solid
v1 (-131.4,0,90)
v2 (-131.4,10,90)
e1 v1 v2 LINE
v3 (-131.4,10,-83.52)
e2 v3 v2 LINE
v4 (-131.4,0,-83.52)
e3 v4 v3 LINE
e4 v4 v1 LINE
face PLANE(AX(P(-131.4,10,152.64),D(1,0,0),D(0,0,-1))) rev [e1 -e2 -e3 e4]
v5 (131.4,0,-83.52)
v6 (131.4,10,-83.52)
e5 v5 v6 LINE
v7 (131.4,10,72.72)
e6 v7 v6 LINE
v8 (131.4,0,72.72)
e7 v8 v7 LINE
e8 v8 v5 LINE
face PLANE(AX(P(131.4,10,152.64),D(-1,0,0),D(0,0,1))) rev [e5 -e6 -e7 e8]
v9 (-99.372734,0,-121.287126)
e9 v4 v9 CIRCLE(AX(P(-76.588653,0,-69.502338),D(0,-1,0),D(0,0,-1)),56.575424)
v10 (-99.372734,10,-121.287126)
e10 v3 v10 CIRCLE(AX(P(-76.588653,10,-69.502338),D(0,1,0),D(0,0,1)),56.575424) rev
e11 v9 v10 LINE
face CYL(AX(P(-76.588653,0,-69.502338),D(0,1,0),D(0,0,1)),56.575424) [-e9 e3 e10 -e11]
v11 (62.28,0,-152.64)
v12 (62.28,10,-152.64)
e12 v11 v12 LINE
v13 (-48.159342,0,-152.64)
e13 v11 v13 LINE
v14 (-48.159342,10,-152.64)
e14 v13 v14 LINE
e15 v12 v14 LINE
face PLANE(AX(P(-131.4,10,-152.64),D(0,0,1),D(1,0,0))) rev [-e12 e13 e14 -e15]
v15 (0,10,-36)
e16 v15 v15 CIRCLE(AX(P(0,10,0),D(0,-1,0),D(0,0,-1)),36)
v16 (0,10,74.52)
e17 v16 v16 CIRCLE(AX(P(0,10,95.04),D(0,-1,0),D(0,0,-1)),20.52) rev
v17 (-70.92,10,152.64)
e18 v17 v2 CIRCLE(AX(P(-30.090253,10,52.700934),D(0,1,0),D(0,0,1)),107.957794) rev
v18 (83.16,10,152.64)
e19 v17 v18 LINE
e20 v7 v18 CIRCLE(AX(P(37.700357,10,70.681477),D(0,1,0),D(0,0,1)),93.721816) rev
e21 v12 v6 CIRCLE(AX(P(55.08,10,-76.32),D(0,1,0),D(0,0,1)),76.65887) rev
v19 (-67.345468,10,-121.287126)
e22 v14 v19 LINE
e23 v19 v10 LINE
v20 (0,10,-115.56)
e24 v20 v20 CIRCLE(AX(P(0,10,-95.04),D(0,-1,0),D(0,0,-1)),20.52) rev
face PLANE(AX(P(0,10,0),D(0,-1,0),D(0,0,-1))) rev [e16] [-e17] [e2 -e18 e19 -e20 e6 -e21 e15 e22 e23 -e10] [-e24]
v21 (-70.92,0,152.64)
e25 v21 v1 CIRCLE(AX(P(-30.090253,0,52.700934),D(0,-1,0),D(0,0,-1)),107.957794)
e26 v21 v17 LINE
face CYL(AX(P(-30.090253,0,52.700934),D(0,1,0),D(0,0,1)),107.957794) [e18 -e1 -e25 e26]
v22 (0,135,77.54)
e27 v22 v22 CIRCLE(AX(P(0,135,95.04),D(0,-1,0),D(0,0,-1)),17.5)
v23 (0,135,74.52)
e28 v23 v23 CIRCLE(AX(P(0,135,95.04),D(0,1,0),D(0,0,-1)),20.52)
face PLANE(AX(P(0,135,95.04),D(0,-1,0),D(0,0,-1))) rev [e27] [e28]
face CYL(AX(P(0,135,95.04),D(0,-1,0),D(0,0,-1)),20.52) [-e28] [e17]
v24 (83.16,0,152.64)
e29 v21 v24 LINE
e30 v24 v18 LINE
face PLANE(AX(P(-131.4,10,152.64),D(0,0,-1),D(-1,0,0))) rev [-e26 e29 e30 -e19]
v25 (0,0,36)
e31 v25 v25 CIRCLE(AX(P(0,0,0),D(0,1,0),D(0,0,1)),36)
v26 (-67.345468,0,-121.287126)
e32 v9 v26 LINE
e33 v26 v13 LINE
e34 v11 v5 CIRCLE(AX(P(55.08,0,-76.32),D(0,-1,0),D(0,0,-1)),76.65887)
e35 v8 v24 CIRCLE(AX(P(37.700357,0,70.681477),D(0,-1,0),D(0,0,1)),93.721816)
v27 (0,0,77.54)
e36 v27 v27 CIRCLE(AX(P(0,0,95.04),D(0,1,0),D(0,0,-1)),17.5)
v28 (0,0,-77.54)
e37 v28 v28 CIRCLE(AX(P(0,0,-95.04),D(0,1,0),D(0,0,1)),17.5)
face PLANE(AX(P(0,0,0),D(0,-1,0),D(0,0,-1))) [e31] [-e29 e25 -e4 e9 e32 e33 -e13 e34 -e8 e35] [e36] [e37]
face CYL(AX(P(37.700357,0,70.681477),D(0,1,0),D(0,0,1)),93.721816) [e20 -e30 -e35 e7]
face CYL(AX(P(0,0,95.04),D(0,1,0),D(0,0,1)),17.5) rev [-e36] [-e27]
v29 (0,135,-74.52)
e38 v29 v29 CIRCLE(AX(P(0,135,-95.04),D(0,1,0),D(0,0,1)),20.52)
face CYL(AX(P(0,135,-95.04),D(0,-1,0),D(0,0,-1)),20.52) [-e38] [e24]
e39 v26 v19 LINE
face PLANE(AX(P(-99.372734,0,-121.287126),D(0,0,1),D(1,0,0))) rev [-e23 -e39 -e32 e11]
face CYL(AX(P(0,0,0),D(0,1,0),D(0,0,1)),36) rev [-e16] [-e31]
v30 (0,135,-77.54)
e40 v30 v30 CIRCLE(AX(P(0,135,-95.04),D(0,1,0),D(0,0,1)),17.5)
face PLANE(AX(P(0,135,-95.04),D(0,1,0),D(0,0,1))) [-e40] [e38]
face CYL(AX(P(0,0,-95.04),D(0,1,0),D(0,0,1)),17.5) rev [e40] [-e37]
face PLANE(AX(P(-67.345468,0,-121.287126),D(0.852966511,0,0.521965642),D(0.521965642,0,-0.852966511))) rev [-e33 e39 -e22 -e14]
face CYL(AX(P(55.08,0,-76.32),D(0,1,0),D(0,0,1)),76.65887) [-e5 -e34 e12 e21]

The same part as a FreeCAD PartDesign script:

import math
import FreeCAD as App
import Part
import Sketcher
Q = App.Units.Quantity


def add_polygon(sketch, points):
    """Adds a closed chain of lines whose ends are joined by coincident constraints."""
    first, n = sketch.GeometryCount, len(points)
    for a, b in zip(points, points[1:] + points[:1]):
        sketch.addGeometry(Part.LineSegment(App.Vector(*a, 0), App.Vector(*b, 0)), False)
    for i in range(n):
        sketch.addConstraint(Sketcher.Constraint("Coincident", first + i, 2, first + (i + 1) % n, 1))

doc = App.newDocument("Part")
params = doc.addObject("Spreadsheet::Sheet", "Params")
for row, (alias, value) in enumerate([
    ("sketch1_width", "262.8 mm"),
    ("sketch1_height", "305.28 mm"),
    ("pad1_length", "10 mm"),
    ("sketch2_width", "60.48 mm"),
    ("sketch2_width2", "48.24 mm"),
    ("sketch2_width3", "69.12 mm"),
    ("sketch2_height", "62.64 mm"),
    ("sketch2_height2", "79.92 mm"),
    ("sketch3_diameter", "72 mm"),
    ("sketch4_diameter", "41.04 mm"),
    ("pad2_length", "125 mm"),
    ("sketch5_diameter", "35 mm"),
], start=1):
    params.set(f"A{row}", alias)
    params.set(f"B{row}", "=" + value)
    params.setAlias(f"B{row}", alias)

body = doc.addObject("PartDesign::Body", "Body")

# Sketch on XZ plane
sketch1 = doc.addObject("Sketcher::SketchObject", "Sketch")
body.addObject(sketch1)
sketch1.AttachmentSupport = (doc.XZ_Plane, [""])
sketch1.MapMode = "FlatFace"
add_polygon(sketch1, [(-131.4, -152.64), (-131.4, 152.64), (131.4, 152.64), (131.4, -152.64)])  # lines 0-3
sketch1.addConstraint(Sketcher.Constraint("Vertical", 0))
sketch1.addConstraint(Sketcher.Constraint("Horizontal", 1))
sketch1.addConstraint(Sketcher.Constraint("Vertical", 2))
sketch1.addConstraint(Sketcher.Constraint("Horizontal", 3))
sketch1.addConstraint(Sketcher.Constraint("Symmetric", 0, 2, 2, 2, -1, 1))
sketch1.addConstraint(Sketcher.Constraint("DistanceX", 1, 1, 1, 2, Q("262.8 mm")))
sketch1.addConstraint(Sketcher.Constraint("DistanceY", 0, 1, 0, 2, Q("305.28 mm")))
sketch1.setExpression("Constraints[9]", "Params.sketch1_width")
sketch1.setExpression("Constraints[10]", "Params.sketch1_height")
pad1 = doc.addObject("PartDesign::Pad", "Pad")
body.addObject(pad1)
pad1.Profile = sketch1
pad1.setExpression("Length", "Params.pad1_length")
pad1.Reversed = True

# Sketch on XZ plane
sketch2 = doc.addObject("Sketcher::SketchObject", "Sketch001")
body.addObject(sketch2)
sketch2.AttachmentSupport = (doc.XZ_Plane, [""])
sketch2.MapMode = "FlatFace"
sketch2.AttachmentOffset = App.Placement(App.Vector(0, 0, -10), App.Rotation())
sketch2.addGeometry(Part.LineSegment(App.Vector(-131.4, 90, 0), App.Vector(-131.4, 152.64, 0)), False)
sketch2.addGeometry(Part.LineSegment(App.Vector(-131.4, 152.64, 0), App.Vector(-70.92, 152.64, 0)), False)
sketch2.addGeometry(Part.ArcOfCircle(Part.Circle(App.Vector(-30.090253, 52.700934, 0), App.Vector(0, 0, 1), 107.957794), math.radians(112.222294), math.radians(159.787878)), False)
sketch2.addGeometry(Part.LineSegment(App.Vector(83.16, 152.64, 0), App.Vector(131.4, 152.64, 0)), False)
sketch2.addGeometry(Part.LineSegment(App.Vector(131.4, 152.64, 0), App.Vector(131.4, 72.72, 0)), False)
sketch2.addGeometry(Part.ArcOfCircle(Part.Circle(App.Vector(37.700357, 70.681477, 0), App.Vector(0, 0, 1), 93.721816), math.radians(1.246327), math.radians(60.984338)), False)
sketch2.addGeometry(Part.LineSegment(App.Vector(-99.372734, -121.287126, 0), App.Vector(-67.345468, -121.287126, 0)), False)
sketch2.addGeometry(Part.LineSegment(App.Vector(-67.345468, -121.287126, 0), App.Vector(-48.159342, -152.64, 0)), False)
sketch2.addGeometry(Part.LineSegment(App.Vector(-48.159342, -152.64, 0), App.Vector(-131.4, -152.64, 0)), False)
sketch2.addGeometry(Part.LineSegment(App.Vector(-131.4, -152.64, 0), App.Vector(-131.4, -83.52, 0)), False)
sketch2.addGeometry(Part.ArcOfCircle(Part.Circle(App.Vector(-76.588653, -69.502338, 0), App.Vector(0, 0, 1), 56.575424), math.radians(-165.654441), math.radians(-113.748358)), False)
sketch2.addGeometry(Part.LineSegment(App.Vector(131.4, -83.52, 0), App.Vector(131.4, -152.64, 0)), False)
sketch2.addGeometry(Part.LineSegment(App.Vector(131.4, -152.64, 0), App.Vector(62.28, -152.64, 0)), False)
sketch2.addGeometry(Part.ArcOfCircle(Part.Circle(App.Vector(55.08, -76.32, 0), App.Vector(0, 0, 1), 76.65887), math.radians(-84.610688), math.radians(-5.389312)), False)
sketch2.addConstraint(Sketcher.Constraint("Coincident", 0, 2, 1, 1))
sketch2.addConstraint(Sketcher.Constraint("Coincident", 1, 2, 2, 1))
sketch2.addConstraint(Sketcher.Constraint("Coincident", 2, 2, 0, 1))
sketch2.addConstraint(Sketcher.Constraint("Coincident", 3, 2, 4, 1))
sketch2.addConstraint(Sketcher.Constraint("Coincident", 4, 2, 5, 1))
sketch2.addConstraint(Sketcher.Constraint("Coincident", 5, 2, 3, 1))
sketch2.addConstraint(Sketcher.Constraint("Coincident", 6, 2, 7, 1))
sketch2.addConstraint(Sketcher.Constraint("Coincident", 7, 2, 8, 1))
sketch2.addConstraint(Sketcher.Constraint("Coincident", 8, 2, 9, 1))
sketch2.addConstraint(Sketcher.Constraint("Coincident", 9, 2, 10, 1))
sketch2.addConstraint(Sketcher.Constraint("Coincident", 10, 2, 6, 1))
sketch2.addConstraint(Sketcher.Constraint("Coincident", 11, 2, 12, 1))
sketch2.addConstraint(Sketcher.Constraint("Coincident", 12, 2, 13, 1))
sketch2.addConstraint(Sketcher.Constraint("Coincident", 13, 2, 11, 1))
sketch2.addConstraint(Sketcher.Constraint("Vertical", 0))
sketch2.addConstraint(Sketcher.Constraint("Horizontal", 1))
sketch2.addConstraint(Sketcher.Constraint("Horizontal", 3))
sketch2.addConstraint(Sketcher.Constraint("Vertical", 4))
sketch2.addConstraint(Sketcher.Constraint("Horizontal", 6))
sketch2.addConstraint(Sketcher.Constraint("Horizontal", 8))
sketch2.addConstraint(Sketcher.Constraint("Vertical", 9))
sketch2.addConstraint(Sketcher.Constraint("Vertical", 11))
sketch2.addConstraint(Sketcher.Constraint("Horizontal", 12))
sketch2.addConstraint(Sketcher.Constraint("Symmetric", 3, 2, 8, 2, -1, 1))
sketch2.addConstraint(Sketcher.Constraint("Symmetric", 0, 2, 11, 2, -1, 1))
sketch2.addConstraint(Sketcher.Constraint("Symmetric", 0, 2, 3, 2, -2))
sketch2.addConstraint(Sketcher.Constraint("Horizontal", 9, 2, 13, 2))
sketch2.addConstraint(Sketcher.Constraint("Equal", 12, 9))
sketch2.addConstraint(Sketcher.Constraint("DistanceY", -1, 1, 2, 2, Q("90 mm")))
sketch2.addConstraint(Sketcher.Constraint("DistanceX", 1, 2, 13, 3, Q("126 mm")))
sketch2.addConstraint(Sketcher.Constraint("DistanceX", 1, 1, 1, 2, Q("60.48 mm")))
sketch2.addConstraint(Sketcher.Constraint("DistanceX", 3, 1, 3, 2, Q("48.24 mm")))
sketch2.addConstraint(Sketcher.Constraint("DistanceX", 12, 2, 12, 1, Q("69.12 mm")))
sketch2.addConstraint(Sketcher.Constraint("DistanceY", 0, 1, 0, 2, Q("62.64 mm")))
sketch2.addConstraint(Sketcher.Constraint("DistanceY", 4, 2, 4, 1, Q("79.92 mm")))
sketch2.addConstraint(Sketcher.Constraint("DistanceX", 0, 2, -1, 1, Q("131.4 mm")))
sketch2.addConstraint(Sketcher.Constraint("Radius", 2, Q("107.957794 mm")))
sketch2.addConstraint(Sketcher.Constraint("Radius", 5, Q("93.721816 mm")))
sketch2.addConstraint(Sketcher.Constraint("Radius", 10, Q("56.575424 mm")))
sketch2.addConstraint(Sketcher.Constraint("DistanceX", 10, 3, 2, 3, Q("46.498401 mm")))
sketch2.addConstraint(Sketcher.Constraint("DistanceX", 7, 2, 5, 3, Q("85.859699 mm")))
sketch2.addConstraint(Sketcher.Constraint("Distance", 7, Q("36.75745 mm")))
sketch2.addConstraint(Sketcher.Constraint("DistanceX", 6, 1, 6, 2, Q("32.027266 mm")))
sketch2.setExpression("Constraints[30]", "Params.sketch2_width")
sketch2.setExpression("Constraints[31]", "Params.sketch2_width2")
sketch2.setExpression("Constraints[32]", "Params.sketch2_width3")
sketch2.setExpression("Constraints[33]", "Params.sketch2_height")
sketch2.setExpression("Constraints[34]", "Params.sketch2_height2")
pocket1 = doc.addObject("PartDesign::Pocket", "Pocket")
body.addObject(pocket1)
pocket1.Profile = sketch2
pocket1.Type = "ThroughAll"
pocket1.Midplane = True

# Sketch on XZ plane
sketch3 = doc.addObject("Sketcher::SketchObject", "Sketch002")
body.addObject(sketch3)
sketch3.AttachmentSupport = (doc.XZ_Plane, [""])
sketch3.MapMode = "FlatFace"
sketch3.AttachmentOffset = App.Placement(App.Vector(0, 0, -10), App.Rotation())
sketch3.addGeometry(Part.Circle(App.Vector(0, 0, 0), App.Vector(0, 0, 1), 36), False)
sketch3.addConstraint(Sketcher.Constraint("Coincident", 0, 3, -1, 1))
sketch3.addConstraint(Sketcher.Constraint("Diameter", 0, Q("72 mm")))
sketch3.setExpression("Constraints[1]", "Params.sketch3_diameter")
pocket2 = doc.addObject("PartDesign::Pocket", "Pocket001")
body.addObject(pocket2)
pocket2.Profile = sketch3
pocket2.Type = "ThroughAll"
pocket2.Midplane = True

# Sketch on XZ plane
sketch4 = doc.addObject("Sketcher::SketchObject", "Sketch003")
body.addObject(sketch4)
sketch4.AttachmentSupport = (doc.XZ_Plane, [""])
sketch4.MapMode = "FlatFace"
sketch4.AttachmentOffset = App.Placement(App.Vector(0, 0, -10), App.Rotation())
sketch4.addGeometry(Part.Circle(App.Vector(0, -95.04, 0), App.Vector(0, 0, 1), 20.52), False)
sketch4.addGeometry(Part.Circle(App.Vector(0, 95.04, 0), App.Vector(0, 0, 1), 20.52), False)
sketch4.addConstraint(Sketcher.Constraint("Equal", 0, 1))
sketch4.addConstraint(Sketcher.Constraint("Symmetric", 0, 3, 1, 3, -1, 1))
sketch4.addConstraint(Sketcher.Constraint("PointOnObject", 0, 3, -2))
sketch4.addConstraint(Sketcher.Constraint("Diameter", 0, Q("41.04 mm")))
sketch4.addConstraint(Sketcher.Constraint("DistanceY", 0, 3, -1, 1, Q("95.04 mm")))
sketch4.setExpression("Constraints[3]", "Params.sketch4_diameter")
pad2 = doc.addObject("PartDesign::Pad", "Pad001")
body.addObject(pad2)
pad2.Profile = sketch4
pad2.setExpression("Length", "Params.pad2_length")
pad2.Reversed = True

# Sketch on XZ plane
sketch5 = doc.addObject("Sketcher::SketchObject", "Sketch004")
body.addObject(sketch5)
sketch5.AttachmentSupport = (doc.XZ_Plane, [""])
sketch5.MapMode = "FlatFace"
sketch5.AttachmentOffset = App.Placement(App.Vector(0, 0, -135), App.Rotation())
sketch5.addGeometry(Part.Circle(App.Vector(0, -95.04, 0), App.Vector(0, 0, 1), 17.5), False)
sketch5.addGeometry(Part.Circle(App.Vector(0, 95.04, 0), App.Vector(0, 0, 1), 17.5), False)
sketch5.addConstraint(Sketcher.Constraint("Equal", 0, 1))
sketch5.addConstraint(Sketcher.Constraint("Symmetric", 0, 3, 1, 3, -1, 1))
sketch5.addConstraint(Sketcher.Constraint("PointOnObject", 0, 3, -2))
sketch5.addConstraint(Sketcher.Constraint("Diameter", 0, Q("35 mm")))
sketch5.addConstraint(Sketcher.Constraint("DistanceY", 0, 3, -1, 1, Q("95.04 mm")))
sketch5.setExpression("Constraints[3]", "Params.sketch5_diameter")
pocket3 = doc.addObject("PartDesign::Pocket", "Pocket002")
body.addObject(pocket3)
pocket3.Profile = sketch5
pocket3.Type = "ThroughAll"
pocket3.Midplane = True

doc.recompute()
